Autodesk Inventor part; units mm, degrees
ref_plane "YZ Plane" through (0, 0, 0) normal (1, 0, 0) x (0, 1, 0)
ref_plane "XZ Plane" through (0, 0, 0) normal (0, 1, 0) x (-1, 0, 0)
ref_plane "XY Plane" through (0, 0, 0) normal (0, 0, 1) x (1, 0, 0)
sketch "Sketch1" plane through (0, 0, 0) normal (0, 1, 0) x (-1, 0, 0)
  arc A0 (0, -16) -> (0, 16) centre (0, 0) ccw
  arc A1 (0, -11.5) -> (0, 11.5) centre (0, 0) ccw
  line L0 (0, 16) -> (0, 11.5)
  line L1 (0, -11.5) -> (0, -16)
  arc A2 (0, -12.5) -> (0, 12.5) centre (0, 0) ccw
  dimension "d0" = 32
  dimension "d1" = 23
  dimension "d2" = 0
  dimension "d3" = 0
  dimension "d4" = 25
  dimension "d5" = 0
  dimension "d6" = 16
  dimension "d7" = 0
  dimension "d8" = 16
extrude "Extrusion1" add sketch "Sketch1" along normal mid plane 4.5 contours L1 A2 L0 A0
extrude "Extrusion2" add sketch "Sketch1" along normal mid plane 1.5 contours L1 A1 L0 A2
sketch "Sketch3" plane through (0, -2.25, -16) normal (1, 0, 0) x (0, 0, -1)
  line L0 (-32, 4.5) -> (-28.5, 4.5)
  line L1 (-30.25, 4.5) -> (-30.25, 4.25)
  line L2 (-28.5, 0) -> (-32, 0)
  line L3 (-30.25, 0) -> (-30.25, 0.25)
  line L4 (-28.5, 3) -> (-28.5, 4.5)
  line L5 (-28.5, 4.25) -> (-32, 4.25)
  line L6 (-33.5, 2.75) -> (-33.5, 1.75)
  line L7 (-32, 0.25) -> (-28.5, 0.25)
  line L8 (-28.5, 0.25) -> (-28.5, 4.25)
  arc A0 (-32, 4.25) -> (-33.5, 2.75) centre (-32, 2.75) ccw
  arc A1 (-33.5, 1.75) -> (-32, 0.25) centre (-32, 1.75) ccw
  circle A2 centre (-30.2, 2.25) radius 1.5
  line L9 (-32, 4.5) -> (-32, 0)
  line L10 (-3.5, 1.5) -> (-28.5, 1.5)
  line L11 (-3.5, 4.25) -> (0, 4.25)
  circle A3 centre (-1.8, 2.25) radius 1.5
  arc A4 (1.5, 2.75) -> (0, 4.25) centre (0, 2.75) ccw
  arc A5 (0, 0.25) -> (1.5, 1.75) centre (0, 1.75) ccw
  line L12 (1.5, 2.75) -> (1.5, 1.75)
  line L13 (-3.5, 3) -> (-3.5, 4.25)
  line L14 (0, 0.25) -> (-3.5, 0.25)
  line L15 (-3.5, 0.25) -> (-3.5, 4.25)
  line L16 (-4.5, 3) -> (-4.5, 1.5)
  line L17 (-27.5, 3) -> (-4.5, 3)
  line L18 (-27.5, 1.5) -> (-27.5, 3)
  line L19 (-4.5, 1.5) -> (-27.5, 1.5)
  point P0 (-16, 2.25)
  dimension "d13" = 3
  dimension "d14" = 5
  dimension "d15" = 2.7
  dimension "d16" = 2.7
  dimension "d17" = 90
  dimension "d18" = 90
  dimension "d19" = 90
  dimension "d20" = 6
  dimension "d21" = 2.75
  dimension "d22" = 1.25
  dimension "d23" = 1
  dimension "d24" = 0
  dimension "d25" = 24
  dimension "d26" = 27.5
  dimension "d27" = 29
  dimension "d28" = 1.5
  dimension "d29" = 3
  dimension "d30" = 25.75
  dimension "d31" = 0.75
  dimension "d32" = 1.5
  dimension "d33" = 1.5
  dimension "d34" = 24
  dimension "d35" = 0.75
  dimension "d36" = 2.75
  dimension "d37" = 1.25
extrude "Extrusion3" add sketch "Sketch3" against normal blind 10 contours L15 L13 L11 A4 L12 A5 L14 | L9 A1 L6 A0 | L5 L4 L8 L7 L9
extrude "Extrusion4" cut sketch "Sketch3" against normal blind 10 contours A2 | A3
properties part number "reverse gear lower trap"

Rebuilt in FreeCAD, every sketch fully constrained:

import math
import FreeCAD as App
import Part
import Sketcher
from FreeCAD import Vector
Q = App.Units.Quantity

doc = App.newDocument("Part")
body = doc.addObject("PartDesign::Body", "Body")

# Sketch on XZ plane
sketch1 = doc.addObject("Sketcher::SketchObject", "Sketch")
body.addObject(sketch1)
sketch1.AttachmentSupport = (doc.XZ_Plane, [""])
sketch1.MapMode = "FlatFace"
sketch1.addGeometry([
    Part.LineSegment(Vector(0, -12.5, 0), Vector(0, -16, 0)),
    Part.ArcOfCircle(Part.Circle(Vector(0, 0, 0), Vector(0, 0, 1), 16), math.radians(90), math.radians(270)),
    Part.LineSegment(Vector(0, 16, 0), Vector(0, 12.5, 0)),
    Part.ArcOfCircle(Part.Circle(Vector(0, 0, 0), Vector(0, 0, 1), 12.5), math.radians(90), math.radians(270)),
], False)
sketch1.addConstraint([
    Sketcher.Constraint("Coincident", 0, 2, 1, 2),
    Sketcher.Constraint("Coincident", 1, 1, 2, 1),
    Sketcher.Constraint("Coincident", 2, 2, 3, 1),
    Sketcher.Constraint("Coincident", 3, 2, 0, 1),
    Sketcher.Constraint("Vertical", 0),
    Sketcher.Constraint("Vertical", 2),
    Sketcher.Constraint("Coincident", 1, 3, -1, 1),
    Sketcher.Constraint("Coincident", 3, 3, -1, 1),
    Sketcher.Constraint("PointOnObject", 0, 2, -2),
    Sketcher.Constraint("PointOnObject", 1, 1, -2),
    Sketcher.Constraint("Radius", 1, Q("16 mm")),
    Sketcher.Constraint("Radius", 3, Q("12.5 mm")),
])
pad1 = doc.addObject("PartDesign::Pad", "Pad")
body.addObject(pad1)
pad1.Profile = sketch1
pad1.Length = 4.5
pad1.Midplane = True

# Sketch on XZ plane
sketch2 = doc.addObject("Sketcher::SketchObject", "Sketch001")
body.addObject(sketch2)
sketch2.AttachmentSupport = (doc.XZ_Plane, [""])
sketch2.MapMode = "FlatFace"
sketch2.addGeometry([
    Part.LineSegment(Vector(0, -11.5, 0), Vector(0, -12.5, 0)),
    Part.ArcOfCircle(Part.Circle(Vector(0, 0, 0), Vector(0, 0, 1), 12.5), math.radians(90), math.radians(270)),
    Part.LineSegment(Vector(0, 12.5, 0), Vector(0, 11.5, 0)),
    Part.ArcOfCircle(Part.Circle(Vector(0, 0, 0), Vector(0, 0, 1), 11.5), math.radians(90), math.radians(270)),
], False)
sketch2.addConstraint([
    Sketcher.Constraint("Coincident", 0, 2, 1, 2),
    Sketcher.Constraint("Coincident", 1, 1, 2, 1),
    Sketcher.Constraint("Coincident", 2, 2, 3, 1),
    Sketcher.Constraint("Coincident", 3, 2, 0, 1),
    Sketcher.Constraint("Vertical", 0),
    Sketcher.Constraint("Vertical", 2),
    Sketcher.Constraint("Coincident", 1, 3, -1, 1),
    Sketcher.Constraint("Coincident", 3, 3, -1, 1),
    Sketcher.Constraint("PointOnObject", 0, 2, -2),
    Sketcher.Constraint("PointOnObject", 1, 1, -2),
    Sketcher.Constraint("Radius", 1, Q("12.5 mm")),
    Sketcher.Constraint("Radius", 3, Q("11.5 mm")),
])
pad2 = doc.addObject("PartDesign::Pad", "Pad001")
body.addObject(pad2)
pad2.Profile = sketch2
pad2.Length = 1.5
pad2.Midplane = True

# Sketch on YZ plane
sketch3 = doc.addObject("Sketcher::SketchObject", "Sketch002")
body.addObject(sketch3)
sketch3.AttachmentSupport = (doc.YZ_Plane, [""])
sketch3.MapMode = "FlatFace"
sketch3.addGeometry([
    Part.LineSegment(Vector(2, -12.5, 0), Vector(-2, -12.5, 0)),  # 0
    Part.LineSegment(Vector(-2, -12.5, 0), Vector(-2, -16, 0)),  # 1
    Part.ArcOfCircle(Part.Circle(Vector(-0.5, -16, 0), Vector(0, 0, 1), 1.5), math.radians(180), math.radians(270)),  # 2
    Part.LineSegment(Vector(-0.5, -17.5, 0), Vector(0.5, -17.5, 0)),  # 3
    Part.ArcOfCircle(Part.Circle(Vector(0.5, -16, 0), Vector(0, 0, 1), 1.5), math.radians(-90), math.radians(0)),  # 4
    Part.LineSegment(Vector(2, -16, 0), Vector(2, -12.5, 0)),  # 5
    Part.Circle(Vector(0, -14.2, 0), Vector(0, 0, 1), 1.5),  # 6
    Part.ArcOfCircle(Part.Circle(Vector(-0.5, 16, 0), Vector(0, 0, 1), 1.5), math.radians(90), math.radians(180)),  # 7
    Part.LineSegment(Vector(-2, 16, 0), Vector(-2, 12.5, 0)),  # 8
    Part.LineSegment(Vector(-2, 12.5, 0), Vector(2, 12.5, 0)),  # 9
    Part.LineSegment(Vector(2, 12.5, 0), Vector(2, 16, 0)),  # 10
    Part.ArcOfCircle(Part.Circle(Vector(0.5, 16, 0), Vector(0, 0, 1), 1.5), math.radians(0), math.radians(90)),  # 11
    Part.LineSegment(Vector(0.5, 17.5, 0), Vector(-0.5, 17.5, 0)),  # 12
    Part.Circle(Vector(0, 14.2, 0), Vector(0, 0, 1), 1.5),  # 13
], False)
sketch3.addConstraint([
    Sketcher.Constraint("Coincident", 0, 2, 1, 1),
    Sketcher.Constraint("Tangent", 1, 2, 2, 1),
    Sketcher.Constraint("Tangent", 2, 2, 3, 1),
    Sketcher.Constraint("Tangent", 3, 2, 4, 1),
    Sketcher.Constraint("Tangent", 4, 2, 5, 1),
    Sketcher.Constraint("Coincident", 5, 2, 0, 1),
    Sketcher.Constraint("Tangent", 7, 2, 8, 1),
    Sketcher.Constraint("Coincident", 8, 2, 9, 1),
    Sketcher.Constraint("Coincident", 9, 2, 10, 1),
    Sketcher.Constraint("Tangent", 10, 2, 11, 1),
    Sketcher.Constraint("Tangent", 11, 2, 12, 1),
    Sketcher.Constraint("Tangent", 12, 2, 7, 1),
    Sketcher.Constraint("Horizontal", 0),
    Sketcher.Constraint("Vertical", 1),
    Sketcher.Constraint("Horizontal", 3),
    Sketcher.Constraint("Vertical", 5),
    Sketcher.Constraint("Vertical", 8),
    Sketcher.Constraint("Horizontal", 9),
    Sketcher.Constraint("Vertical", 10),
    Sketcher.Constraint("Horizontal", 12),
    Sketcher.Constraint("Equal", 2, 4),
    Sketcher.Constraint("Equal", 4, 6),
    Sketcher.Constraint("Equal", 6, 7),
    Sketcher.Constraint("Equal", 7, 11),
    Sketcher.Constraint("Equal", 11, 13),
    Sketcher.Constraint("Symmetric", 4, 3, 7, 3, -1, 1),
    Sketcher.Constraint("Symmetric", 6, 3, 13, 3, -1, 1),
    Sketcher.Constraint("Symmetric", 0, 2, 9, 2, -1, 1),
    Sketcher.Constraint("PointOnObject", 6, 3, -2),
    Sketcher.Constraint("Vertical", 2, 3, 7, 3),
    Sketcher.Constraint("Diameter", 6, Q("3 mm")),
    Sketcher.Constraint("DistanceX", 3, 1, 3, 2, Q("1 mm")),
    Sketcher.Constraint("DistanceY", 2, 2, 0, 2, Q("5 mm")),
    Sketcher.Constraint("DistanceY", 2, 3, -1, 1, Q("16 mm")),
    Sketcher.Constraint("DistanceY", 6, 3, -1, 1, Q("14.2 mm")),
])
pad3 = doc.addObject("PartDesign::Pad", "Pad002")
body.addObject(pad3)
pad3.Profile = sketch3
pad3.Length = 10
pad3.Reversed = True

# Sketch on YZ plane
sketch4 = doc.addObject("Sketcher::SketchObject", "Sketch003")
body.addObject(sketch4)
sketch4.AttachmentSupport = (doc.YZ_Plane, [""])
sketch4.MapMode = "FlatFace"
sketch4.addGeometry([
    Part.Circle(Vector(0, 14.2, 0), Vector(0, 0, 1), 1.5),
    Part.Circle(Vector(0, -14.2, 0), Vector(0, 0, 1), 1.5),
], False)
sketch4.addConstraint([
    Sketcher.Constraint("Equal", 0, 1),
    Sketcher.Constraint("Symmetric", 0, 3, 1, 3, -1, 1),
    Sketcher.Constraint("PointOnObject", 0, 3, -2),
    Sketcher.Constraint("Diameter", 0, Q("3 mm")),
    Sketcher.Constraint("DistanceY", -1, 1, 0, 3, Q("14.2 mm")),
])
pocket1 = doc.addObject("PartDesign::Pocket", "Pocket")
body.addObject(pocket1)
pocket1.Profile = sketch4
pocket1.Length = 10

doc.recompute()
